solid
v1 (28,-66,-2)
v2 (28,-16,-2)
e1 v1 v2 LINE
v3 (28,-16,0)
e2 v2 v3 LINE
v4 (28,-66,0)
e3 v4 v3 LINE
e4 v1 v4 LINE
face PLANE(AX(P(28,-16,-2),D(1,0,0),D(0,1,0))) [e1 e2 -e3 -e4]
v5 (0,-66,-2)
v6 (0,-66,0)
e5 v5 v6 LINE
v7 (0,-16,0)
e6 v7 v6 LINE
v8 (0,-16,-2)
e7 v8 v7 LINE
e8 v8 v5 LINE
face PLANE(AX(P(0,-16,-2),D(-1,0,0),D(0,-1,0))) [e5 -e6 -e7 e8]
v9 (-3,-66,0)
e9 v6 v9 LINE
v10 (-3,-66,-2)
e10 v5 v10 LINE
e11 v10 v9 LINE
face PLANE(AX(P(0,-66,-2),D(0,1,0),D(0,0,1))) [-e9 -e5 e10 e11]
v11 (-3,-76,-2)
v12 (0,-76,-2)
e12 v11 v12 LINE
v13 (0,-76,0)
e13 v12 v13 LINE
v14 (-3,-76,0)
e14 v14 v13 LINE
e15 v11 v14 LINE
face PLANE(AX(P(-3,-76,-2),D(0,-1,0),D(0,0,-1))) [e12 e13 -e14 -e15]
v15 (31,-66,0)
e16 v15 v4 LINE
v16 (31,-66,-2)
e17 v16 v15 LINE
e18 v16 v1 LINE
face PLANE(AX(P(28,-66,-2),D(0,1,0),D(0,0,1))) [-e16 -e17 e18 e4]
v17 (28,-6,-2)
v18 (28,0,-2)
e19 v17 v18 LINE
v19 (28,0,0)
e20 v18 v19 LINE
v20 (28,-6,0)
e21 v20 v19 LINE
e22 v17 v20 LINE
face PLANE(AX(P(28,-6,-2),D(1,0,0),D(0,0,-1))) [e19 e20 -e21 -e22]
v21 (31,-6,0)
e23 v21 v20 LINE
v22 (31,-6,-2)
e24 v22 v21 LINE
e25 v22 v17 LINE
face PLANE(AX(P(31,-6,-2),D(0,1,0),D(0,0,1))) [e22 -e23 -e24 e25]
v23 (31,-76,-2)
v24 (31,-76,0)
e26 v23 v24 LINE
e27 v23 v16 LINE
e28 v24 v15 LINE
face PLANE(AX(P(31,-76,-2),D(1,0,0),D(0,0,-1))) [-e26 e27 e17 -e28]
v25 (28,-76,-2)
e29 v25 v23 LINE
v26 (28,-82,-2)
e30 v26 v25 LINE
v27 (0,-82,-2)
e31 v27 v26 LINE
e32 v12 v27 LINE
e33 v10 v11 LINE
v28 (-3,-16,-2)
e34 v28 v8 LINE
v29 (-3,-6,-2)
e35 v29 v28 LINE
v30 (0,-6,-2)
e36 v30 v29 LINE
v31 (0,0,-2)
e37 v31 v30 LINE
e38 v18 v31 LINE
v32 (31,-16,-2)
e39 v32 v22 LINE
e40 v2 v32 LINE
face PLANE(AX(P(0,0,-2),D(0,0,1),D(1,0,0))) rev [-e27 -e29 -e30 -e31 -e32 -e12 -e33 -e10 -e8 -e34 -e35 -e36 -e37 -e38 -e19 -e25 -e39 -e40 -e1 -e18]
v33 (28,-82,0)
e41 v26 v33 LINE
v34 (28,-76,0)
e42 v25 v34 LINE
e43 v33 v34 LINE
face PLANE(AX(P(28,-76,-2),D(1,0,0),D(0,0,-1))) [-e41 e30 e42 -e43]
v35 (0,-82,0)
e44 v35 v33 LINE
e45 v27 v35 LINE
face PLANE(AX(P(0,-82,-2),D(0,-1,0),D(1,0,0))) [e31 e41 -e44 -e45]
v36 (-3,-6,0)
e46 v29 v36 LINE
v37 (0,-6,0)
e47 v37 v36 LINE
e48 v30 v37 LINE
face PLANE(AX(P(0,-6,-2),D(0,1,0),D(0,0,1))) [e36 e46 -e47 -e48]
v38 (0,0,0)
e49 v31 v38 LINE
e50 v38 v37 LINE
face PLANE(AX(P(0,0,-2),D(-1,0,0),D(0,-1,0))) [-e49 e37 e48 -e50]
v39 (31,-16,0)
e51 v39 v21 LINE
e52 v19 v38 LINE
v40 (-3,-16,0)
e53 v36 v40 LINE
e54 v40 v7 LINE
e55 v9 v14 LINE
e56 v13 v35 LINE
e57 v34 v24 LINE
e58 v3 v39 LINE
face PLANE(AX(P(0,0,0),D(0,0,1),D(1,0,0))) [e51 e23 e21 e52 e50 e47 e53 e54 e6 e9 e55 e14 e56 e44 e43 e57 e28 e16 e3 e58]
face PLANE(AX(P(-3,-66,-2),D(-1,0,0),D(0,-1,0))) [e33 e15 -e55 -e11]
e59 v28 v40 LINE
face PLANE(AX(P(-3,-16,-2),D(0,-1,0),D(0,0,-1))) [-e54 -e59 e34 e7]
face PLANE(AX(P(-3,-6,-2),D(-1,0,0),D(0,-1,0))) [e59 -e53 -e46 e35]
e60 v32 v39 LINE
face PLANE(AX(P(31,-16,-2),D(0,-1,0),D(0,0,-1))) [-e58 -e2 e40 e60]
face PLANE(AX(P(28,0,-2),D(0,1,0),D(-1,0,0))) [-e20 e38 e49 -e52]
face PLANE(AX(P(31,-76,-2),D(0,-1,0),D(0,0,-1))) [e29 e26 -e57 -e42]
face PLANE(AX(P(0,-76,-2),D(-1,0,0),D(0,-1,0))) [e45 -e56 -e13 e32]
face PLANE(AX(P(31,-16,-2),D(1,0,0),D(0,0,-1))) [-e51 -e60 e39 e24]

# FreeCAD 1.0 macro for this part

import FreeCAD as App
import Part
import Sketcher
from FreeCAD import Vector
Q = App.Units.Quantity

doc = App.newDocument("Part")
body = doc.addObject("PartDesign::Body", "Body")

sketch1 = doc.addObject("Sketcher::SketchObject", "Sketch")
body.addObject(sketch1)
sketch1.AttachmentSupport = (doc.XY_Plane, [""])
sketch1.MapMode = "FlatFace"
sketch1.addGeometry([
    Part.LineSegment(Vector(0, 0, 0), Vector(0, -6, 0)),
    Part.LineSegment(Vector(0, -6, 0), Vector(-3, -6, 0)),
    Part.LineSegment(Vector(-3, -6, 0), Vector(-3, -16, 0)),
    Part.LineSegment(Vector(-3, -16, 0), Vector(0, -16, 0)),
    Part.LineSegment(Vector(0, -16, 0), Vector(0, -66, 0)),
    Part.LineSegment(Vector(0, -66, 0), Vector(-3, -66, 0)),
    Part.LineSegment(Vector(-3, -66, 0), Vector(-3, -76, 0)),
    Part.LineSegment(Vector(-3, -76, 0), Vector(0, -76, 0)),
    Part.LineSegment(Vector(0, -76, 0), Vector(0, -82, 0)),
    Part.LineSegment(Vector(0, -82, 0), Vector(28, -82, 0)),
    Part.LineSegment(Vector(28, -82, 0), Vector(28, -76, 0)),
    Part.LineSegment(Vector(28, -76, 0), Vector(31, -76, 0)),
    Part.LineSegment(Vector(31, -76, 0), Vector(31, -66, 0)),
    Part.LineSegment(Vector(31, -66, 0), Vector(28, -66, 0)),
    Part.LineSegment(Vector(28, -66, 0), Vector(28, -16, 0)),
    Part.LineSegment(Vector(28, -16, 0), Vector(31, -16, 0)),
    Part.LineSegment(Vector(31, -16, 0), Vector(31, -6, 0)),
    Part.LineSegment(Vector(31, -6, 0), Vector(28, -6, 0)),
    Part.LineSegment(Vector(28, -6, 0), Vector(28, 0, 0)),
    Part.LineSegment(Vector(28, 0, 0), Vector(0, 0, 0)),
], False)
sketch1.addConstraint([
    Sketcher.Constraint("Coincident", 0, 2, 1, 1),
    Sketcher.Constraint("Coincident", 1, 2, 2, 1),
    Sketcher.Constraint("Coincident", 2, 2, 3, 1),
    Sketcher.Constraint("Coincident", 3, 2, 4, 1),
    Sketcher.Constraint("Coincident", 4, 2, 5, 1),
    Sketcher.Constraint("Coincident", 5, 2, 6, 1),
    Sketcher.Constraint("Coincident", 6, 2, 7, 1),
    Sketcher.Constraint("Coincident", 7, 2, 8, 1),
    Sketcher.Constraint("Coincident", 8, 2, 9, 1),
    Sketcher.Constraint("Coincident", 9, 2, 10, 1),
    Sketcher.Constraint("Coincident", 10, 2, 11, 1),
    Sketcher.Constraint("Coincident", 11, 2, 12, 1),
    Sketcher.Constraint("Coincident", 12, 2, 13, 1),
    Sketcher.Constraint("Coincident", 13, 2, 14, 1),
    Sketcher.Constraint("Coincident", 14, 2, 15, 1),
    Sketcher.Constraint("Coincident", 15, 2, 16, 1),
    Sketcher.Constraint("Coincident", 16, 2, 17, 1),
    Sketcher.Constraint("Coincident", 17, 2, 18, 1),
    Sketcher.Constraint("Coincident", 18, 2, 19, 1),
    Sketcher.Constraint("Coincident", 19, 2, 0, 1),
    Sketcher.Constraint("Vertical", 0),
    Sketcher.Constraint("Horizontal", 1),
    Sketcher.Constraint("Vertical", 2),
    Sketcher.Constraint("Horizontal", 3),
    Sketcher.Constraint("Vertical", 4),
    Sketcher.Constraint("Horizontal", 5),
    Sketcher.Constraint("Vertical", 6),
    Sketcher.Constraint("Horizontal", 7),
    Sketcher.Constraint("Vertical", 8),
    Sketcher.Constraint("Horizontal", 9),
    Sketcher.Constraint("Vertical", 10),
    Sketcher.Constraint("Horizontal", 11),
    Sketcher.Constraint("Vertical", 12),
    Sketcher.Constraint("Horizontal", 13),
    Sketcher.Constraint("Vertical", 14),
    Sketcher.Constraint("Horizontal", 15),
    Sketcher.Constraint("Vertical", 16),
    Sketcher.Constraint("Horizontal", 17),
    Sketcher.Constraint("Vertical", 18),
    Sketcher.Constraint("Horizontal", 19),
    Sketcher.Constraint("Coincident", 19, 2, -1, 1),
    Sketcher.Constraint("PointOnObject", 3, 2, -2),
    Sketcher.Constraint("PointOnObject", 7, 2, -2),
    Sketcher.Constraint("Horizontal", 7, 2, 10, 2),
    Sketcher.Constraint("Horizontal", 5, 2, 12, 2),
    Sketcher.Constraint("Horizontal", 3, 2, 14, 2),
    Sketcher.Constraint("Horizontal", 1, 2, 16, 2),
    Sketcher.Constraint("Vertical", 2, 2, 5, 2),
    Sketcher.Constraint("Vertical", 10, 2, 13, 2),
    Sketcher.Constraint("Vertical", 12, 2, 15, 2),
    Sketcher.Constraint("Vertical", 14, 2, 17, 2),
    Sketcher.Constraint("Equal", 7, 11),
    Sketcher.Constraint("Equal", 2, 6),
    Sketcher.Constraint("Equal", 0, 8),
    Sketcher.Constraint("DistanceX", 1, 2, 1, 1, Q("3 mm")),
    Sketcher.Constraint("DistanceX", 9, 1, 9, 2, Q("28 mm")),
    Sketcher.Constraint("DistanceY", 0, 2, 0, 1, Q("6 mm")),
    Sketcher.Constraint("DistanceY", 2, 2, 2, 1, Q("10 mm")),
    Sketcher.Constraint("DistanceY", 4, 2, 4, 1, Q("50 mm")),
])
pad1 = doc.addObject("PartDesign::Pad", "Pad")
body.addObject(pad1)
pad1.Profile = sketch1
pad1.Length = 2
pad1.Reversed = True

doc.recompute()
